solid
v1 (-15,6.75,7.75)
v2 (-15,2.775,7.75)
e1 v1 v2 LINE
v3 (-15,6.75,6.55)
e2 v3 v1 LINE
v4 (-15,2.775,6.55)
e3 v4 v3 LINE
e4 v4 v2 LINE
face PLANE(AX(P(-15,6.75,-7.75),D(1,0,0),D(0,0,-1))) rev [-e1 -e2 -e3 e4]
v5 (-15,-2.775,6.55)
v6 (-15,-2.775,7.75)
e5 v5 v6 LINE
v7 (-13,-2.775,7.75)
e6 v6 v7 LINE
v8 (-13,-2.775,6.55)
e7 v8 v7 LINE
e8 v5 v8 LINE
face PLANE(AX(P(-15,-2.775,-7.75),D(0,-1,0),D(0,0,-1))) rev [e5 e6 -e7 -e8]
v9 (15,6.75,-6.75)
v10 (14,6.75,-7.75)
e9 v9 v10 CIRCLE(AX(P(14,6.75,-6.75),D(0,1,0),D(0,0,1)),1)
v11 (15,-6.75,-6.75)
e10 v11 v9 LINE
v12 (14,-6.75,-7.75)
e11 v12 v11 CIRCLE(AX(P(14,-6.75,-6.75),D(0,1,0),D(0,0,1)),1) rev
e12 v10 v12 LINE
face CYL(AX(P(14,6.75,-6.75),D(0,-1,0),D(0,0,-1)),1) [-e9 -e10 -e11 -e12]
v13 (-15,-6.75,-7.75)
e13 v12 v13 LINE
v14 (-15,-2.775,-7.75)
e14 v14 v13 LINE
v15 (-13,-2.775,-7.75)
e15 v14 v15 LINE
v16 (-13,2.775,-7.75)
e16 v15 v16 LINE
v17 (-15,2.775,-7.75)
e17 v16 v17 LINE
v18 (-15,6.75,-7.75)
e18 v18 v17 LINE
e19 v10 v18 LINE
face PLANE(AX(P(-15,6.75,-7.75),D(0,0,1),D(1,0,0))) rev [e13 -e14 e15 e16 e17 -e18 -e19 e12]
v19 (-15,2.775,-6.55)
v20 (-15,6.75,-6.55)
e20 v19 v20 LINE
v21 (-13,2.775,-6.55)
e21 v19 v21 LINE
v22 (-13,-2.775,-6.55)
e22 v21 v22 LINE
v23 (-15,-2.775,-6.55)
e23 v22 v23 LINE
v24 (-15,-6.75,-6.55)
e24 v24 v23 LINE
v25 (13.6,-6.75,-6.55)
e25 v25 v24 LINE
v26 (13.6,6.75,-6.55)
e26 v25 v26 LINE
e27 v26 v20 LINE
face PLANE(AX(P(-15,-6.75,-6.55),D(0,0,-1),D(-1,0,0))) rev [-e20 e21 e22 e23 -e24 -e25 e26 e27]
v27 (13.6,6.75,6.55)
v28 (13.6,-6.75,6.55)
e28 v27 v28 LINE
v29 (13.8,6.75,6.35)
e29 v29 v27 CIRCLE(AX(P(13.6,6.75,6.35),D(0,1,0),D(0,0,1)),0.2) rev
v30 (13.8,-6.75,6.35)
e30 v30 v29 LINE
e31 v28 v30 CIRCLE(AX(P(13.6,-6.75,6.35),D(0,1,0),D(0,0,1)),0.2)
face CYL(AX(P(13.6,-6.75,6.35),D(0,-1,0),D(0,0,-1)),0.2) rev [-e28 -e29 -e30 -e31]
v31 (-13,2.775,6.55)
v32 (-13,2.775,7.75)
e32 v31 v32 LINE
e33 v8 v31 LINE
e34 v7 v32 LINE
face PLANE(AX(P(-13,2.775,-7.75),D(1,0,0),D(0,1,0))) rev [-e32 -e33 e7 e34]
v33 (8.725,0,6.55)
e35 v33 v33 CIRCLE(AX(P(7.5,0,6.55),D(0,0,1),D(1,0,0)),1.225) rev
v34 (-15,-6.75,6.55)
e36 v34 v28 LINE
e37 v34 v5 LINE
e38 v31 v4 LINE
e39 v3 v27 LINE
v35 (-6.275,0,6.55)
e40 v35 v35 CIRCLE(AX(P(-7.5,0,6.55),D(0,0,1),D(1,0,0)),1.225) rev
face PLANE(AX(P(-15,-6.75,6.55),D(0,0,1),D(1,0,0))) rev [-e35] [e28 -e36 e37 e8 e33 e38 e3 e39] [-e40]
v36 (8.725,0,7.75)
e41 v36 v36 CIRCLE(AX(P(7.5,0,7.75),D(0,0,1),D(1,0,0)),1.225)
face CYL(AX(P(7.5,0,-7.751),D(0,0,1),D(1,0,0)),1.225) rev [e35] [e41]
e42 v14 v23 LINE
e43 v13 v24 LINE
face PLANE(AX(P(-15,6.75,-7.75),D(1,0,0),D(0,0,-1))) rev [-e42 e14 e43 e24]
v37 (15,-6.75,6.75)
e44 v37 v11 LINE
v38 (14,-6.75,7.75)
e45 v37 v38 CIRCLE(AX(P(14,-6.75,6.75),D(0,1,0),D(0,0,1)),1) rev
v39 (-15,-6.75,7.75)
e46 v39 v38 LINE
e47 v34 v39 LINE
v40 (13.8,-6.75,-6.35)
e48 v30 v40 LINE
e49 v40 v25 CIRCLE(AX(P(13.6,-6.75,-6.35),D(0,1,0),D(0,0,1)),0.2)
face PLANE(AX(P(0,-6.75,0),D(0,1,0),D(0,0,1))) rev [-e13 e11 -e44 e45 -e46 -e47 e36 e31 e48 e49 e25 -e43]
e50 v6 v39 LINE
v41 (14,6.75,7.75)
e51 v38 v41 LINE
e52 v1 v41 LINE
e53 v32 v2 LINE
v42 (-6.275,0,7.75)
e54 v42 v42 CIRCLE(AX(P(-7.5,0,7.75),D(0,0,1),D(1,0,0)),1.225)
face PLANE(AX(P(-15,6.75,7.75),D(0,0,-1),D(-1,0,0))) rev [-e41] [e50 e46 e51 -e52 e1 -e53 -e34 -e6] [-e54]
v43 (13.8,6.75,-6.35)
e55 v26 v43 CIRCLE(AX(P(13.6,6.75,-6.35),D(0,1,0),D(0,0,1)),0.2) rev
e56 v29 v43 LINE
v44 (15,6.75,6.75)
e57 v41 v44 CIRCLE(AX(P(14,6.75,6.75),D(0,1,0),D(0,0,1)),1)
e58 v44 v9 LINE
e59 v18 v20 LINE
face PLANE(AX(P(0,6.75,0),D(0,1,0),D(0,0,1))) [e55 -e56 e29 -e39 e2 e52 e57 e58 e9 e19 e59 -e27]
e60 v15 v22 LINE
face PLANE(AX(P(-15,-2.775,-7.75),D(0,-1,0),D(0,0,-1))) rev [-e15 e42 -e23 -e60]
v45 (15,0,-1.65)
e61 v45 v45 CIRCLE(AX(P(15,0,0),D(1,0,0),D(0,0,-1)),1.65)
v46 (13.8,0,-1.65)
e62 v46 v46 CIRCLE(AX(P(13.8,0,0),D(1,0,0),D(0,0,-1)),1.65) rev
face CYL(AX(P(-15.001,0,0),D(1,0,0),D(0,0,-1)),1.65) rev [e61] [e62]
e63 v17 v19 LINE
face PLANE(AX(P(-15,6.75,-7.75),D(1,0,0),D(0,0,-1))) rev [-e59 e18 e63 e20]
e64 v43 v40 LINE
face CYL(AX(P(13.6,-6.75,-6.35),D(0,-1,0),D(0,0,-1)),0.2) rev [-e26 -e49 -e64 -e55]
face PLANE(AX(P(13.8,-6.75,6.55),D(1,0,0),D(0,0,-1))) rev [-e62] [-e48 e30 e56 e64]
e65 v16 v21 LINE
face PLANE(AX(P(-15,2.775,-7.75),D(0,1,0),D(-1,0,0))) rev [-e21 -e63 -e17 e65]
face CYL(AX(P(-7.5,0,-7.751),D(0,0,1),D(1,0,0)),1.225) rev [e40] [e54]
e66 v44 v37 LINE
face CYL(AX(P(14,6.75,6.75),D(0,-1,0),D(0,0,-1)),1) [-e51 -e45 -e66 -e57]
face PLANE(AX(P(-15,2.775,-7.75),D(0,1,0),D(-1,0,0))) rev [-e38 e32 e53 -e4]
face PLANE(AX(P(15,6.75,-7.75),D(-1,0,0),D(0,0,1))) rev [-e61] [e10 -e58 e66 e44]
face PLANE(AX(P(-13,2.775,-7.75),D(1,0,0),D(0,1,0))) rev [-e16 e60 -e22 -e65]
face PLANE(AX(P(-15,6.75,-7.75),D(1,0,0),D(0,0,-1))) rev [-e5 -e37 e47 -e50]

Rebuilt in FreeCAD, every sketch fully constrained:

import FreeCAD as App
import Part
import Sketcher
from FreeCAD import Vector


def edges_at(feature, points):
    """Names of the edges that pass closest to the given points."""
    edges = feature.Shape.Edges
    near = lambda p: min(range(len(edges)), key=lambda i: edges[i].distToShape(Part.Vertex(*p))[0])
    return sorted({f"Edge{near(p) + 1}" for p in points})

doc = App.newDocument("Part")
params = doc.addObject("Spreadsheet::Sheet", "Params")
for row, (alias, value) in enumerate([
    ("sketch1_width", "30 mm"),
    ("sketch1_height", "15.5 mm"),
    ("pad1_length", "13.5 mm"),
    ("sketch2_width", "28.8 mm"),
    ("sketch2_height", "13.1 mm"),
    ("sketch3_diameter", "3.3 mm"),
    ("fillet_radius", "1 mm"),
    ("fillet2_radius", "0.2 mm"),
    ("sketch4_width", "2 mm"),
    ("sketch4_height", "5.55 mm"),
    ("sketch5_diameter", "2.45 mm"),
    ("sketch6_diameter", "2.45 mm"),
], start=1):
    params.set(f"A{row}", alias)
    params.set(f"B{row}", "=" + value)
    params.setAlias(f"B{row}", alias)

body = doc.addObject("PartDesign::Body", "Body")

sketch1 = doc.addObject("Sketcher::SketchObject", "Sketch")
body.addObject(sketch1)
sketch1.AttachmentSupport = (doc.XZ_Plane, [""])
sketch1.MapMode = "FlatFace"
sketch1.addGeometry(Part.LineSegment(Vector(-15, -8, 0), Vector(-15, 8, 0)), False)
sketch1.addGeometry(Part.LineSegment(Vector(-15, 8, 0), Vector(15, 8, 0)), False)
sketch1.addGeometry(Part.LineSegment(Vector(15, 8, 0), Vector(15, -8, 0)), False)
sketch1.addGeometry(Part.LineSegment(Vector(15, -8, 0), Vector(-15, -8, 0)), False)
sketch1.addConstraint(Sketcher.Constraint("Coincident", 0, 2, 1, 1))
sketch1.addConstraint(Sketcher.Constraint("Coincident", 1, 2, 2, 1))
sketch1.addConstraint(Sketcher.Constraint("Coincident", 2, 2, 3, 1))
sketch1.addConstraint(Sketcher.Constraint("Coincident", 3, 2, 0, 1))
sketch1.addConstraint(Sketcher.Constraint("Vertical", 0))
sketch1.addConstraint(Sketcher.Constraint("Horizontal", 1))
sketch1.addConstraint(Sketcher.Constraint("Vertical", 2))
sketch1.addConstraint(Sketcher.Constraint("Horizontal", 3))
sketch1.addConstraint(Sketcher.Constraint("Symmetric", 0, 2, 2, 2, -1, 1))
sketch1.addConstraint(Sketcher.Constraint("DistanceX", 1, 1, 1, 2, 30.0))
sketch1.addConstraint(Sketcher.Constraint("DistanceY", 0, 1, 0, 2, 15.5))
sketch1.setExpression("Constraints[9]", "Params.sketch1_width")
sketch1.setExpression("Constraints[10]", "Params.sketch1_height")
pad1 = doc.addObject("PartDesign::Pad", "Pad")
body.addObject(pad1)
pad1.Profile = sketch1
pad1.setExpression("Length", "Params.pad1_length")
pad1.Midplane = True

sketch2 = doc.addObject("Sketcher::SketchObject", "Sketch001")
body.addObject(sketch2)
sketch2.AttachmentSupport = (doc.XZ_Plane, [""])
sketch2.MapMode = "FlatFace"
sketch2.addGeometry(Part.LineSegment(Vector(-15, -7, 0), Vector(-15, 7, 0)), False)
sketch2.addGeometry(Part.LineSegment(Vector(-15, 7, 0), Vector(14, 7, 0)), False)
sketch2.addGeometry(Part.LineSegment(Vector(14, 7, 0), Vector(14, -7, 0)), False)
sketch2.addGeometry(Part.LineSegment(Vector(14, -7, 0), Vector(-15, -7, 0)), False)
sketch2.addConstraint(Sketcher.Constraint("Coincident", 0, 2, 1, 1))
sketch2.addConstraint(Sketcher.Constraint("Coincident", 1, 2, 2, 1))
sketch2.addConstraint(Sketcher.Constraint("Coincident", 2, 2, 3, 1))
sketch2.addConstraint(Sketcher.Constraint("Coincident", 3, 2, 0, 1))
sketch2.addConstraint(Sketcher.Constraint("Vertical", 0))
sketch2.addConstraint(Sketcher.Constraint("Horizontal", 1))
sketch2.addConstraint(Sketcher.Constraint("Vertical", 2))
sketch2.addConstraint(Sketcher.Constraint("Horizontal", 3))
sketch2.addConstraint(Sketcher.Constraint("DistanceX", 1, 1, 1, 2, 28.8))
sketch2.addConstraint(Sketcher.Constraint("DistanceY", 0, 1, 0, 2, 13.1))
sketch2.addConstraint(Sketcher.Constraint("DistanceX", 0, 2, -1, 1, 15.0))
sketch2.addConstraint(Sketcher.Constraint("DistanceY", -1, 1, 0, 2, 6.55))
sketch2.setExpression("Constraints[8]", "Params.sketch2_width")
sketch2.setExpression("Constraints[9]", "Params.sketch2_height")
pocket1 = doc.addObject("PartDesign::Pocket", "Pocket")
body.addObject(pocket1)
pocket1.Profile = sketch2
pocket1.Type = "ThroughAll"
pocket1.Midplane = True

sketch3 = doc.addObject("Sketcher::SketchObject", "Sketch002")
body.addObject(sketch3)
sketch3.AttachmentSupport = (doc.YZ_Plane, [""])
sketch3.MapMode = "FlatFace"
sketch3.AttachmentOffset = App.Placement(Vector(0, 0, 15), App.Rotation())
sketch3.addGeometry(Part.Circle(Vector(0, 0, 0), Vector(0, 0, 1), 1.6), False)
sketch3.addConstraint(Sketcher.Constraint("Coincident", 0, 3, -1, 1))
sketch3.addConstraint(Sketcher.Constraint("Diameter", 0, 3.3))
sketch3.setExpression("Constraints[1]", "Params.sketch3_diameter")
pocket2 = doc.addObject("PartDesign::Pocket", "Pocket001")
body.addObject(pocket2)
pocket2.Profile = sketch3
pocket2.Type = "UpToFirst"
doc.recompute()

fillet = doc.addObject("PartDesign::Fillet", "Fillet")
body.addObject(fillet)
fillet.Base = (pocket2, edges_at(pocket2, [(15, 0, -7.75), (15, 0, 7.75)]))
fillet.setExpression("Radius", "Params.fillet_radius")
doc.recompute()

fillet2 = doc.addObject("PartDesign::Fillet", "Fillet001")
body.addObject(fillet2)
fillet2.Base = (fillet, edges_at(fillet, [(13.8, 0, -6.55), (13.8, 0, 6.55)]))
fillet2.setExpression("Radius", "Params.fillet2_radius")

sketch4 = doc.addObject("Sketcher::SketchObject", "Sketch003")
body.addObject(sketch4)
sketch4.AttachmentSupport = (doc.XY_Plane, [""])
sketch4.MapMode = "FlatFace"
sketch4.addGeometry(Part.LineSegment(Vector(-15, 2.8, 0), Vector(-15, -2.8, 0)), False)
sketch4.addGeometry(Part.LineSegment(Vector(-15, -2.8, 0), Vector(-13, -2.8, 0)), False)
sketch4.addGeometry(Part.LineSegment(Vector(-13, -2.8, 0), Vector(-13, 2.8, 0)), False)
sketch4.addGeometry(Part.LineSegment(Vector(-13, 2.8, 0), Vector(-15, 2.8, 0)), False)
sketch4.addConstraint(Sketcher.Constraint("Coincident", 0, 2, 1, 1))
sketch4.addConstraint(Sketcher.Constraint("Coincident", 1, 2, 2, 1))
sketch4.addConstraint(Sketcher.Constraint("Coincident", 2, 2, 3, 1))
sketch4.addConstraint(Sketcher.Constraint("Coincident", 3, 2, 0, 1))
sketch4.addConstraint(Sketcher.Constraint("Vertical", 0))
sketch4.addConstraint(Sketcher.Constraint("Horizontal", 1))
sketch4.addConstraint(Sketcher.Constraint("Vertical", 2))
sketch4.addConstraint(Sketcher.Constraint("Horizontal", 3))
sketch4.addConstraint(Sketcher.Constraint("DistanceX", 1, 1, 1, 2, 2.0))
sketch4.addConstraint(Sketcher.Constraint("DistanceX", 0, 2, -1, 1, 15.0))
sketch4.addConstraint(Sketcher.Constraint("DistanceY", 0, 2, 0, 1, 5.55))
sketch4.addConstraint(Sketcher.Constraint("DistanceY", 0, 2, -1, 1, 2.775))
sketch4.setExpression("Constraints[8]", "Params.sketch4_width")
sketch4.setExpression("Constraints[10]", "Params.sketch4_height")
pocket3 = doc.addObject("PartDesign::Pocket", "Pocket002")
body.addObject(pocket3)
pocket3.Profile = sketch4
pocket3.Type = "ThroughAll"
pocket3.Midplane = True

sketch5 = doc.addObject("Sketcher::SketchObject", "Sketch004")
body.addObject(sketch5)
sketch5.AttachmentSupport = (doc.XY_Plane, [""])
sketch5.MapMode = "FlatFace"
sketch5.AttachmentOffset = App.Placement(Vector(0, 0, 7.75), App.Rotation())
sketch5.addGeometry(Part.Circle(Vector(-7.5, 0, 0), Vector(0, 0, 1), 1.2), False)
sketch5.addConstraint(Sketcher.Constraint("PointOnObject", 0, 3, -1))
sketch5.addConstraint(Sketcher.Constraint("Diameter", 0, 2.45))
sketch5.addConstraint(Sketcher.Constraint("DistanceX", 0, 3, -1, 1, 7.5))
sketch5.setExpression("Constraints[1]", "Params.sketch5_diameter")
pocket4 = doc.addObject("PartDesign::Pocket", "Pocket003")
body.addObject(pocket4)
pocket4.Profile = sketch5
pocket4.Type = "UpToFirst"

sketch6 = doc.addObject("Sketcher::SketchObject", "Sketch005")
body.addObject(sketch6)
sketch6.AttachmentSupport = (doc.XY_Plane, [""])
sketch6.MapMode = "FlatFace"
sketch6.AttachmentOffset = App.Placement(Vector(0, 0, 7.75), App.Rotation())
sketch6.addGeometry(Part.Circle(Vector(7.5, 0, 0), Vector(0, 0, 1), 1.2), False)
sketch6.addConstraint(Sketcher.Constraint("PointOnObject", 0, 3, -1))
sketch6.addConstraint(Sketcher.Constraint("Diameter", 0, 2.45))
sketch6.addConstraint(Sketcher.Constraint("DistanceX", -1, 1, 0, 3, 7.5))
sketch6.setExpression("Constraints[1]", "Params.sketch6_diameter")
pocket5 = doc.addObject("PartDesign::Pocket", "Pocket004")
body.addObject(pocket5)
pocket5.Profile = sketch6
pocket5.Type = "UpToFirst"

doc.recompute()
